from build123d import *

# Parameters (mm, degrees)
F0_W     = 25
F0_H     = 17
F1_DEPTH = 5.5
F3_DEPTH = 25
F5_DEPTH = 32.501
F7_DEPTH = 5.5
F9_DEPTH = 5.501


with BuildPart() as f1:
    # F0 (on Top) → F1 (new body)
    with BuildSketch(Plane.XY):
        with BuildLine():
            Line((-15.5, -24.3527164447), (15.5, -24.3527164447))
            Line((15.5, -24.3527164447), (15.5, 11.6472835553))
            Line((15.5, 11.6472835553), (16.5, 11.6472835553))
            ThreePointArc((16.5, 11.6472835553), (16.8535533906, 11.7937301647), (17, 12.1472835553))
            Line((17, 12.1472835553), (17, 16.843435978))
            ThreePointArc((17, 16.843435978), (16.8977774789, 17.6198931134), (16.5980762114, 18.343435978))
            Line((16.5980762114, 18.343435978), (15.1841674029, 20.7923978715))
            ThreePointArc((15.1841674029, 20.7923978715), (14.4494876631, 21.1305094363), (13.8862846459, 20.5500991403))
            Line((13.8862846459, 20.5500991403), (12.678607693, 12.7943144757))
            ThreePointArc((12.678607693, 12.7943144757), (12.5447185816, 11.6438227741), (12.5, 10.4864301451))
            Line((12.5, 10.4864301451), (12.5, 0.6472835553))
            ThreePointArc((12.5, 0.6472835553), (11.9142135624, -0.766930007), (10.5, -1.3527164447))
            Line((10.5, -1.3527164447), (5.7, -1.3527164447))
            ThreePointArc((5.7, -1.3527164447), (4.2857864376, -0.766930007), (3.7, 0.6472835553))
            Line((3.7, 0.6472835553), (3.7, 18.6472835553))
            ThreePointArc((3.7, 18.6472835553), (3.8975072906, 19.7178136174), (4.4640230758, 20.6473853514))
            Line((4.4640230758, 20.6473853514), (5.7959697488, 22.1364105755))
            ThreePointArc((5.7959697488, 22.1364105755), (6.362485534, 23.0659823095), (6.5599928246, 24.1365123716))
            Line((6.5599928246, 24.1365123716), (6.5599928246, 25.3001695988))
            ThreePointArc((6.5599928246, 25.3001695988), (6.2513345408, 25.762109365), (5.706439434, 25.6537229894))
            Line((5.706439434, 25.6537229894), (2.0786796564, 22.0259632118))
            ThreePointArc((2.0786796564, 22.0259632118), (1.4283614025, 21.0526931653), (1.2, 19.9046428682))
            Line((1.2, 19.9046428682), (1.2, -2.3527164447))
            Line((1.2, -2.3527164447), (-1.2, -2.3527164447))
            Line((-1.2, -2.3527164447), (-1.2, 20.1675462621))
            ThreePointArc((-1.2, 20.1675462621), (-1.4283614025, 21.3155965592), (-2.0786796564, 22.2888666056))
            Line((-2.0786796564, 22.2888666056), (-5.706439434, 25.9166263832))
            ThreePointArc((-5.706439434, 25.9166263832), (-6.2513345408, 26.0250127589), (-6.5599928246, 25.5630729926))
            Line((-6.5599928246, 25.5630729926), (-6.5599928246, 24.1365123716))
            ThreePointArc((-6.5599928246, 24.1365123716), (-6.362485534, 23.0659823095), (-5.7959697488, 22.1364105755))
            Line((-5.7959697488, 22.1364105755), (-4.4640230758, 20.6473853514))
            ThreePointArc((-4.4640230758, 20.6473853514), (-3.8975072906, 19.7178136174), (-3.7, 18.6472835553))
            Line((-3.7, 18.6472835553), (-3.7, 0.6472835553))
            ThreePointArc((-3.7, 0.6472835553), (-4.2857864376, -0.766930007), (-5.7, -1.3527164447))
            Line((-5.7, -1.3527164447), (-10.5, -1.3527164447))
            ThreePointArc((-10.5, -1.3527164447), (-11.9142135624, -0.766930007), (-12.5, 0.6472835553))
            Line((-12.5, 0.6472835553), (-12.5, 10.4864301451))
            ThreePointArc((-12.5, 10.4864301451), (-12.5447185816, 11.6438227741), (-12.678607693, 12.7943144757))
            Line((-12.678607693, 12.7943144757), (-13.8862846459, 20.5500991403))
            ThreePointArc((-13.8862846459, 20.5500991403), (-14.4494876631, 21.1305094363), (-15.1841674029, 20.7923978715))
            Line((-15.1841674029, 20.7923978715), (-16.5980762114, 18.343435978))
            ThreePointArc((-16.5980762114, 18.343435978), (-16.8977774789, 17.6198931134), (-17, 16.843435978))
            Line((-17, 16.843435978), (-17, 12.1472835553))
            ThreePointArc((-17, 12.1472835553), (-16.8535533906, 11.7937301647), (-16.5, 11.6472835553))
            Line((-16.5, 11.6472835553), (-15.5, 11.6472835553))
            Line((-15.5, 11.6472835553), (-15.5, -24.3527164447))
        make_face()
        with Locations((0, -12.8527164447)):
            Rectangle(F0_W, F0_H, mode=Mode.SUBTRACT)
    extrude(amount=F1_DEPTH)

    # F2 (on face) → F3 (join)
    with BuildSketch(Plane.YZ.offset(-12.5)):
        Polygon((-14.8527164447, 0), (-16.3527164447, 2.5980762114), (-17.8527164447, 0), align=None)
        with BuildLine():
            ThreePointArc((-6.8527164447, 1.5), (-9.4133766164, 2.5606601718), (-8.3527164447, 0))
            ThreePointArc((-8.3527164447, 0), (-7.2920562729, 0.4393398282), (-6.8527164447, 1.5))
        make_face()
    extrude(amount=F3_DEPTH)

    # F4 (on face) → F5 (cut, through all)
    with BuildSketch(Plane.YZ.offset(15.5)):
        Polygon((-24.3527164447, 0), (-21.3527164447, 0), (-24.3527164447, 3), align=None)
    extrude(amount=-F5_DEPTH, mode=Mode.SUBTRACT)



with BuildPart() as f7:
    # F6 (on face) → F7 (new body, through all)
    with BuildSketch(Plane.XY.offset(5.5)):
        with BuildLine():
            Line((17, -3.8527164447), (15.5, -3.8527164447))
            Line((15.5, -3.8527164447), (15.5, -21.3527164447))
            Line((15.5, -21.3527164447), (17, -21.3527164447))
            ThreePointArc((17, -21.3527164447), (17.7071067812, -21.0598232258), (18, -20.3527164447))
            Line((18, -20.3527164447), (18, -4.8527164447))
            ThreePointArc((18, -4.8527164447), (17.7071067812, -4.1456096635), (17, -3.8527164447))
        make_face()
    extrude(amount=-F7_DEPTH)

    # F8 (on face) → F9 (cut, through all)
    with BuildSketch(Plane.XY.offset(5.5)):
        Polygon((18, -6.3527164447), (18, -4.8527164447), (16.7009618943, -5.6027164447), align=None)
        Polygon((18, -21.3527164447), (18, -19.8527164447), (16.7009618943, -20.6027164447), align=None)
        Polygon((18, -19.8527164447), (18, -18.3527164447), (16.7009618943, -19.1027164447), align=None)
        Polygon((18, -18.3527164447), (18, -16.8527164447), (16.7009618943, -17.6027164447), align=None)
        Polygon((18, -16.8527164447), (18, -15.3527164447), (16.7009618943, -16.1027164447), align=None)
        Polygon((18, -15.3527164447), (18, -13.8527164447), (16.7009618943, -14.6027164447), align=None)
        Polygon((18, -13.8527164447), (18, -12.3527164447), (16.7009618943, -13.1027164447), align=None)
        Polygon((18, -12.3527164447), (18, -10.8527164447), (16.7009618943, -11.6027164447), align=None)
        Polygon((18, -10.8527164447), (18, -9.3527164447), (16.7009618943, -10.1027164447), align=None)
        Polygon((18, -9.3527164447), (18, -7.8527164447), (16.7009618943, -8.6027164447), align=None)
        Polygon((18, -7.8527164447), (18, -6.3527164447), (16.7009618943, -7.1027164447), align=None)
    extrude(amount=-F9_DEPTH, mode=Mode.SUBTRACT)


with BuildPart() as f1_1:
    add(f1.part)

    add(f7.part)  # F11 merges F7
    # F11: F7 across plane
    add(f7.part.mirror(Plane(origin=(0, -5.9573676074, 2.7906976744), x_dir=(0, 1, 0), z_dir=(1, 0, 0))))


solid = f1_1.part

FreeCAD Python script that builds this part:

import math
import FreeCAD as App
import Part
import Sketcher
Q = App.Units.Quantity


def add_polygon(sketch, points):
    """Adds a closed chain of lines whose ends are joined by coincident constraints."""
    first, n = sketch.GeometryCount, len(points)
    for a, b in zip(points, points[1:] + points[:1]):
        sketch.addGeometry(Part.LineSegment(App.Vector(*a, 0), App.Vector(*b, 0)), False)
    for i in range(n):
        sketch.addConstraint(Sketcher.Constraint("Coincident", first + i, 2, first + (i + 1) % n, 1))

doc = App.newDocument("Part")
params = doc.addObject("Spreadsheet::Sheet", "Params")
for row, (alias, value) in enumerate([
    ("sketch1_radius", "3 mm"),
    ("sketch1_radius2", "15 mm"),
    ("sketch1_radius3", "2 mm"),
    ("sketch1_radius4", "0.5 mm"),
    ("sketch1_radius5", "0.7 mm"),
    ("pad1_length", "5.5 mm"),
    ("sketch2_radius", "1.5 mm"),
    ("sketch2_width", "3 mm"),
    ("pad2_length", "25 mm"),
    ("sketch3_width", "3 mm"),
    ("sketch4_radius", "1 mm"),
    ("sketch4_width", "1.5 mm"),
    ("sketch4_height", "17.5 mm"),
    ("pad3_length", "5.5 mm"),
    ("sketch5_height", "1.5 mm"),
], start=1):
    params.set(f"A{row}", alias)
    params.set(f"B{row}", "=" + value)
    params.setAlias(f"B{row}", alias)

body = doc.addObject("PartDesign::Body", "Body")

# Sketch on XY plane
sketch1 = body.newObject("Sketcher::SketchObject", "Sketch")
sketch1.AttachmentSupport = (doc.getObject("XY_Plane"), [""])
sketch1.MapMode = "FlatFace"
sketch1.addGeometry(Part.LineSegment(App.Vector(-15.5, -24.352716, 0), App.Vector(15.5, -24.352716, 0)), False)  # 0
sketch1.addGeometry(Part.LineSegment(App.Vector(15.5, -24.352716, 0), App.Vector(15.5, 11.647284, 0)), False)  # 1
sketch1.addGeometry(Part.LineSegment(App.Vector(15.5, 11.647284, 0), App.Vector(16.5, 11.647284, 0)), False)  # 2
sketch1.addGeometry(Part.ArcOfCircle(Part.Circle(App.Vector(16.5, 12.147284, 0), App.Vector(0, 0, 1), 0.5), math.radians(-90), math.radians(0)), False)  # 3
sketch1.addGeometry(Part.LineSegment(App.Vector(17, 12.147284, 0), App.Vector(17, 16.843436, 0)), False)  # 4
sketch1.addGeometry(Part.ArcOfCircle(Part.Circle(App.Vector(14, 16.843436, 0), App.Vector(0, 0, 1), 3), math.radians(0), math.radians(30)), False)  # 5
sketch1.addGeometry(Part.LineSegment(App.Vector(16.598076, 18.343436, 0), App.Vector(15.184167, 20.792398, 0)), False)  # 6
sketch1.addGeometry(Part.ArcOfCircle(Part.Circle(App.Vector(14.57795, 20.442398, 0), App.Vector(0, 0, 1), 0.7), math.radians(30), math.radians(171.149375)), False)  # 7
sketch1.addGeometry(Part.LineSegment(App.Vector(13.886285, 20.550099, 0), App.Vector(12.678608, 12.794314, 0)), False)  # 8
sketch1.addGeometry(Part.ArcOfCircle(Part.Circle(App.Vector(27.5, 10.48643, 0), App.Vector(0, 0, 1), 15), math.radians(171.149375), math.radians(180)), False)  # 9
sketch1.addGeometry(Part.LineSegment(App.Vector(12.5, 10.48643, 0), App.Vector(12.5, 0.647284, 0)), False)  # 10
sketch1.addGeometry(Part.ArcOfCircle(Part.Circle(App.Vector(10.5, 0.647284, 0), App.Vector(0, 0, 1), 2), math.radians(-90), math.radians(0)), False)  # 11
sketch1.addGeometry(Part.LineSegment(App.Vector(10.5, -1.352716, 0), App.Vector(5.7, -1.352716, 0)), False)  # 12
sketch1.addGeometry(Part.ArcOfCircle(Part.Circle(App.Vector(5.7, 0.647284, 0), App.Vector(0, 0, 1), 2), math.radians(180), math.radians(270)), False)  # 13
sketch1.addGeometry(Part.LineSegment(App.Vector(3.7, 0.647284, 0), App.Vector(3.7, 18.647284, 0)), False)  # 14
sketch1.addGeometry(Part.ArcOfCircle(Part.Circle(App.Vector(6.7, 18.647284, 0), App.Vector(0, 0, 1), 3), math.radians(138.187077), math.radians(180)), False)  # 15
sketch1.addGeometry(Part.LineSegment(App.Vector(4.464023, 20.647385, 0), App.Vector(5.79597, 22.136411, 0)), False)  # 16
sketch1.addGeometry(Part.ArcOfCircle(Part.Circle(App.Vector(3.559993, 24.136512, 0), App.Vector(0, 0, 1), 3), math.radians(-41.812923), math.radians(0)), False)  # 17
sketch1.addGeometry(Part.LineSegment(App.Vector(6.559993, 24.136512, 0), App.Vector(6.559993, 25.30017, 0)), False)  # 18
sketch1.addGeometry(Part.ArcOfCircle(Part.Circle(App.Vector(6.059993, 25.30017, 0), App.Vector(0, 0, 1), 0.5), math.radians(0), math.radians(135)), False)  # 19
sketch1.addGeometry(Part.LineSegment(App.Vector(5.706439, 25.653723, 0), App.Vector(2.07868, 22.025963, 0)), False)  # 20
sketch1.addGeometry(Part.ArcOfCircle(Part.Circle(App.Vector(4.2, 19.904643, 0), App.Vector(0, 0, 1), 3), math.radians(135), math.radians(180)), False)  # 21
sketch1.addGeometry(Part.LineSegment(App.Vector(1.2, 19.904643, 0), App.Vector(1.2, -2.352716, 0)), False)  # 22
sketch1.addGeometry(Part.LineSegment(App.Vector(1.2, -2.352716, 0), App.Vector(-1.2, -2.352716, 0)), False)  # 23
sketch1.addGeometry(Part.LineSegment(App.Vector(-1.2, -2.352716, 0), App.Vector(-1.2, 20.167546, 0)), False)  # 24
sketch1.addGeometry(Part.ArcOfCircle(Part.Circle(App.Vector(-4.2, 20.167546, 0), App.Vector(0, 0, 1), 3), math.radians(0), math.radians(45)), False)  # 25
sketch1.addGeometry(Part.LineSegment(App.Vector(-2.07868, 22.288867, 0), App.Vector(-5.706439, 25.916626, 0)), False)  # 26
sketch1.addGeometry(Part.ArcOfCircle(Part.Circle(App.Vector(-6.059993, 25.563073, 0), App.Vector(0, 0, 1), 0.5), math.radians(45), math.radians(180)), False)  # 27
sketch1.addGeometry(Part.LineSegment(App.Vector(-6.559993, 25.563073, 0), App.Vector(-6.559993, 24.136512, 0)), False)  # 28
sketch1.addGeometry(Part.ArcOfCircle(Part.Circle(App.Vector(-3.559993, 24.136512, 0), App.Vector(0, 0, 1), 3), math.radians(180), math.radians(221.812923)), False)  # 29
sketch1.addGeometry(Part.LineSegment(App.Vector(-5.79597, 22.136411, 0), App.Vector(-4.464023, 20.647385, 0)), False)  # 30
sketch1.addGeometry(Part.ArcOfCircle(Part.Circle(App.Vector(-6.7, 18.647284, 0), App.Vector(0, 0, 1), 3), math.radians(0), math.radians(41.812923)), False)  # 31
sketch1.addGeometry(Part.LineSegment(App.Vector(-3.7, 18.647284, 0), App.Vector(-3.7, 0.647284, 0)), False)  # 32
sketch1.addGeometry(Part.ArcOfCircle(Part.Circle(App.Vector(-5.7, 0.647284, 0), App.Vector(0, 0, 1), 2), math.radians(-90), math.radians(0)), False)  # 33
sketch1.addGeometry(Part.LineSegment(App.Vector(-5.7, -1.352716, 0), App.Vector(-10.5, -1.352716, 0)), False)  # 34
sketch1.addGeometry(Part.ArcOfCircle(Part.Circle(App.Vector(-10.5, 0.647284, 0), App.Vector(0, 0, 1), 2), math.radians(180), math.radians(270)), False)  # 35
sketch1.addGeometry(Part.LineSegment(App.Vector(-12.5, 0.647284, 0), App.Vector(-12.5, 10.48643, 0)), False)  # 36
sketch1.addGeometry(Part.ArcOfCircle(Part.Circle(App.Vector(-27.5, 10.48643, 0), App.Vector(0, 0, 1), 15), math.radians(0), math.radians(8.850625)), False)  # 37
sketch1.addGeometry(Part.LineSegment(App.Vector(-12.678608, 12.794314, 0), App.Vector(-13.886285, 20.550099, 0)), False)  # 38
sketch1.addGeometry(Part.ArcOfCircle(Part.Circle(App.Vector(-14.57795, 20.442398, 0), App.Vector(0, 0, 1), 0.7), math.radians(8.850625), math.radians(150)), False)  # 39
sketch1.addGeometry(Part.LineSegment(App.Vector(-15.184167, 20.792398, 0), App.Vector(-16.598076, 18.343436, 0)), False)  # 40
sketch1.addGeometry(Part.ArcOfCircle(Part.Circle(App.Vector(-14, 16.843436, 0), App.Vector(0, 0, 1), 3), math.radians(150), math.radians(180)), False)  # 41
sketch1.addGeometry(Part.LineSegment(App.Vector(-17, 16.843436, 0), App.Vector(-17, 12.147284, 0)), False)  # 42
sketch1.addGeometry(Part.ArcOfCircle(Part.Circle(App.Vector(-16.5, 12.147284, 0), App.Vector(0, 0, 1), 0.5), math.radians(180), math.radians(270)), False)  # 43
sketch1.addGeometry(Part.LineSegment(App.Vector(-16.5, 11.647284, 0), App.Vector(-15.5, 11.647284, 0)), False)  # 44
sketch1.addGeometry(Part.LineSegment(App.Vector(-15.5, 11.647284, 0), App.Vector(-15.5, -24.352716, 0)), False)  # 45
add_polygon(sketch1, [(12.5, -21.352716), (-12.5, -21.352716), (-12.5, -4.352716), (12.5, -4.352716)])  # lines 46-49
sketch1.addConstraint(Sketcher.Constraint("Coincident", 0, 2, 1, 1))
sketch1.addConstraint(Sketcher.Constraint("Coincident", 1, 2, 2, 1))
sketch1.addConstraint(Sketcher.Constraint("Tangent", 2, 2, 3, 1))
sketch1.addConstraint(Sketcher.Constraint("Tangent", 3, 2, 4, 1))
sketch1.addConstraint(Sketcher.Constraint("Tangent", 4, 2, 5, 1))
sketch1.addConstraint(Sketcher.Constraint("Tangent", 5, 2, 6, 1))
sketch1.addConstraint(Sketcher.Constraint("Tangent", 6, 2, 7, 1))
sketch1.addConstraint(Sketcher.Constraint("Tangent", 7, 2, 8, 1))
sketch1.addConstraint(Sketcher.Constraint("Tangent", 8, 2, 9, 1))
sketch1.addConstraint(Sketcher.Constraint("Tangent", 9, 2, 10, 1))
sketch1.addConstraint(Sketcher.Constraint("Tangent", 10, 2, 11, 2))
sketch1.addConstraint(Sketcher.Constraint("Tangent", 11, 1, 12, 1))
sketch1.addConstraint(Sketcher.Constraint("Tangent", 12, 2, 13, 2))
sketch1.addConstraint(Sketcher.Constraint("Tangent", 13, 1, 14, 1))
sketch1.addConstraint(Sketcher.Constraint("Tangent", 14, 2, 15, 2))
sketch1.addConstraint(Sketcher.Constraint("Tangent", 15, 1, 16, 1))
sketch1.addConstraint(Sketcher.Constraint("Tangent", 16, 2, 17, 1))
sketch1.addConstraint(Sketcher.Constraint("Tangent", 17, 2, 18, 1))
sketch1.addConstraint(Sketcher.Constraint("Tangent", 18, 2, 19, 1))
sketch1.addConstraint(Sketcher.Constraint("Tangent", 19, 2, 20, 1))
sketch1.addConstraint(Sketcher.Constraint("Tangent", 20, 2, 21, 1))
sketch1.addConstraint(Sketcher.Constraint("Tangent", 21, 2, 22, 1))
sketch1.addConstraint(Sketcher.Constraint("Coincident", 22, 2, 23, 1))
sketch1.addConstraint(Sketcher.Constraint("Coincident", 23, 2, 24, 1))
sketch1.addConstraint(Sketcher.Constraint("Tangent", 24, 2, 25, 1))
sketch1.addConstraint(Sketcher.Constraint("Tangent", 25, 2, 26, 1))
sketch1.addConstraint(Sketcher.Constraint("Tangent", 26, 2, 27, 1))
sketch1.addConstraint(Sketcher.Constraint("Tangent", 27, 2, 28, 1))
sketch1.addConstraint(Sketcher.Constraint("Tangent", 28, 2, 29, 1))
sketch1.addConstraint(Sketcher.Constraint("Tangent", 29, 2, 30, 1))
sketch1.addConstraint(Sketcher.Constraint("Tangent", 30, 2, 31, 2))
sketch1.addConstraint(Sketcher.Constraint("Tangent", 31, 1, 32, 1))
sketch1.addConstraint(Sketcher.Constraint("Tangent", 32, 2, 33, 2))
sketch1.addConstraint(Sketcher.Constraint("Tangent", 33, 1, 34, 1))
sketch1.addConstraint(Sketcher.Constraint("Tangent", 34, 2, 35, 2))
sketch1.addConstraint(Sketcher.Constraint("Tangent", 35, 1, 36, 1))
sketch1.addConstraint(Sketcher.Constraint("Tangent", 36, 2, 37, 1))
sketch1.addConstraint(Sketcher.Constraint("Tangent", 37, 2, 38, 1))
sketch1.addConstraint(Sketcher.Constraint("Tangent", 38, 2, 39, 1))
sketch1.addConstraint(Sketcher.Constraint("Tangent", 39, 2, 40, 1))
sketch1.addConstraint(Sketcher.Constraint("Tangent", 40, 2, 41, 1))
sketch1.addConstraint(Sketcher.Constraint("Tangent", 41, 2, 42, 1))
sketch1.addConstraint(Sketcher.Constraint("Tangent", 42, 2, 43, 1))
sketch1.addConstraint(Sketcher.Constraint("Tangent", 43, 2, 44, 1))
sketch1.addConstraint(Sketcher.Constraint("Coincident", 44, 2, 45, 1))
sketch1.addConstraint(Sketcher.Constraint("Coincident", 45, 2, 0, 1))
sketch1.addConstraint(Sketcher.Constraint("Horizontal", 0))
sketch1.addConstraint(Sketcher.Constraint("Vertical", 1))
sketch1.addConstraint(Sketcher.Constraint("Horizontal", 2))
sketch1.addConstraint(Sketcher.Constraint("Vertical", 4))
sketch1.addConstraint(Sketcher.Constraint("Vertical", 10))
sketch1.addConstraint(Sketcher.Constraint("Horizontal", 12))
sketch1.addConstraint(Sketcher.Constraint("Vertical", 14))
sketch1.addConstraint(Sketcher.Constraint("Vertical", 18))
sketch1.addConstraint(Sketcher.Constraint("Vertical", 22))
sketch1.addConstraint(Sketcher.Constraint("Horizontal", 23))
sketch1.addConstraint(Sketcher.Constraint("Vertical", 24))
sketch1.addConstraint(Sketcher.Constraint("Vertical", 28))
sketch1.addConstraint(Sketcher.Constraint("Vertical", 32))
sketch1.addConstraint(Sketcher.Constraint("Horizontal", 34))
sketch1.addConstraint(Sketcher.Constraint("Vertical", 36))
sketch1.addConstraint(Sketcher.Constraint("Vertical", 42))
sketch1.addConstraint(Sketcher.Constraint("Horizontal", 44))
sketch1.addConstraint(Sketcher.Constraint("Vertical", 45))
sketch1.addConstraint(Sketcher.Constraint("Horizontal", 46))
sketch1.addConstraint(Sketcher.Constraint("Vertical", 47))
sketch1.addConstraint(Sketcher.Constraint("Horizontal", 48))
sketch1.addConstraint(Sketcher.Constraint("Vertical", 49))
sketch1.addConstraint(Sketcher.Constraint("Equal", 11, 13))
sketch1.addConstraint(Sketcher.Constraint("Equal", 5, 15))
sketch1.addConstraint(Sketcher.Constraint("Equal", 15, 17))
sketch1.addConstraint(Sketcher.Constraint("Equal", 3, 19))
sketch1.addConstraint(Sketcher.Constraint("Equal", 17, 21))
sketch1.addConstraint(Sketcher.Constraint("Equal", 21, 25))
sketch1.addConstraint(Sketcher.Constraint("Equal", 19, 27))
sketch1.addConstraint(Sketcher.Constraint("Equal", 25, 29))
sketch1.addConstraint(Sketcher.Constraint("Equal", 29, 31))
sketch1.addConstraint(Sketcher.Constraint("Equal", 13, 33))
sketch1.addConstraint(Sketcher.Constraint("Equal", 33, 35))
sketch1.addConstraint(Sketcher.Constraint("Equal", 9, 37))
sketch1.addConstraint(Sketcher.Constraint("Equal", 7, 39))
sketch1.addConstraint(Sketcher.Constraint("Equal", 31, 41))
sketch1.addConstraint(Sketcher.Constraint("Equal", 27, 43))
sketch1.addConstraint(Sketcher.Constraint("Symmetric", 17, 3, 29, 3, -2))
sketch1.addConstraint(Sketcher.Constraint("Symmetric", 15, 3, 31, 3, -2))
sketch1.addConstraint(Sketcher.Constraint("Symmetric", 11, 3, 35, 3, -2))
sketch1.addConstraint(Sketcher.Constraint("Symmetric", 7, 3, 39, 3, -2))
sketch1.addConstraint(Sketcher.Constraint("Symmetric", 5, 3, 41, 3, -2))
sketch1.addConstraint(Sketcher.Constraint("Symmetric", 1, 2, 44, 2, -2))
sketch1.addConstraint(Sketcher.Constraint("Perpendicular", 20, 26))
sketch1.addConstraint(Sketcher.Constraint("Horizontal", 9, 3, 37, 3))
sketch1.addConstraint(Sketcher.Constraint("Vertical", 36, 2, 46, 2))
sketch1.addConstraint(Sketcher.Constraint("Vertical", 10, 2, 48, 2))
sketch1.addConstraint(Sketcher.Constraint("Equal", 20, 26))
sketch1.addConstraint(Sketcher.Constraint("Radius", 5, 3.0))
sketch1.addConstraint(Sketcher.Constraint("Radius", 9, 15.0))
sketch1.addConstraint(Sketcher.Constraint("Radius", 11, 2.0))
sketch1.addConstraint(Sketcher.Constraint("Radius", 3, 0.5))
sketch1.addConstraint(Sketcher.Constraint("Radius", 7, 0.7))
sketch1.addConstraint(Sketcher.Constraint("DistanceX", 0, 1, 0, 2, 31.0))
sketch1.addConstraint(Sketcher.Constraint("DistanceX", 2, 1, 2, 2, 1.0))
sketch1.addConstraint(Sketcher.Constraint("DistanceX", 46, 2, 46, 1, 25.0))
sketch1.addConstraint(Sketcher.Constraint("DistanceY", 1, 1, 1, 2, 36.0))
sketch1.addConstraint(Sketcher.Constraint("DistanceY", 14, 1, 14, 2, 18.0))
sketch1.addConstraint(Sketcher.Constraint("DistanceY", 47, 1, 47, 2, 17.0))
sketch1.addConstraint(Sketcher.Constraint("Angle", 6, Q("120 deg")))
sketch1.addConstraint(Sketcher.Constraint("Angle", 20, Q("-135 deg")))
sketch1.addConstraint(Sketcher.Constraint("DistanceX", 12, 2, 12, 1, 4.8))
sketch1.addConstraint(Sketcher.Constraint("DistanceX", 23, 2, 23, 1, 2.4))
sketch1.addConstraint(Sketcher.Constraint("DistanceY", 22, 2, 22, 1, 22.257359))
sketch1.addConstraint(Sketcher.Constraint("DistanceY", 28, 2, 28, 1, 1.426561))
sketch1.addConstraint(Sketcher.Constraint("DistanceY", -1, 1, 7, 2, 20.550099))
sketch1.addConstraint(Sketcher.Constraint("Distance", 16, 1.997818))
sketch1.addConstraint(Sketcher.Constraint("DistanceY", 4, 1, 4, 2, 4.696152))
sketch1.addConstraint(Sketcher.Constraint("DistanceY", 10, 2, 10, 1, 9.839147))
sketch1.addConstraint(Sketcher.Constraint("DistanceY", 18, 1, 18, 2, 1.163657))
sketch1.addConstraint(Sketcher.Constraint("DistanceX", -1, 1, 7, 3, 14.57795))
sketch1.addConstraint(Sketcher.Constraint("DistanceY", -1, 1, 9, 3, 10.48643))
sketch1.addConstraint(Sketcher.Constraint("DistanceY", -1, 1, 19, 3, 25.30017))
sketch1.addConstraint(Sketcher.Constraint("DistanceY", 46, 2, -1, 1, 21.352716))
sketch1.setExpression("Constraints[98]", "Params.sketch1_radius")
sketch1.setExpression("Constraints[99]", "Params.sketch1_radius2")
sketch1.setExpression("Constraints[100]", "Params.sketch1_radius3")
sketch1.setExpression("Constraints[101]", "Params.sketch1_radius4")
sketch1.setExpression("Constraints[102]", "Params.sketch1_radius5")
pad1 = body.newObject("PartDesign::Pad", "Pad")
pad1.Profile = sketch1
pad1.setExpression("Length", "Params.pad1_length")

# Sketch on YZ plane
sketch2 = body.newObject("Sketcher::SketchObject", "Sketch001")
sketch2.AttachmentSupport = (doc.getObject("YZ_Plane"), [""])
sketch2.MapMode = "FlatFace"
sketch2.AttachmentOffset = App.Placement(App.Vector(0, 0, -12.5), App.Rotation())
add_polygon(sketch2, [(-14.852716, 0), (-16.352716, 2.598076), (-17.852716, 0)])  # lines 0-2
sketch2.addGeometry(Part.ArcOfCircle(Part.Circle(App.Vector(-8.352716, 1.5, 0), App.Vector(0, 0, 1), 1.5), math.radians(0), math.radians(270)), False)  # 3
sketch2.addGeometry(Part.ArcOfCircle(Part.Circle(App.Vector(-8.352716, 1.5, 0), App.Vector(0, 0, 1), 1.5), math.radians(-90), math.radians(0)), False)  # 4
sketch2.addConstraint(Sketcher.Constraint("Tangent", 3, 1, 4, 2))
sketch2.addConstraint(Sketcher.Constraint("Coincident", 4, 1, 3, 2))
sketch2.addConstraint(Sketcher.Constraint("Horizontal", 2))
sketch2.addConstraint(Sketcher.Constraint("PointOnObject", 1, 2, -1))
sketch2.addConstraint(Sketcher.Constraint("PointOnObject", 4, 1, -1))
sketch2.addConstraint(Sketcher.Constraint("Horizontal", 4, 3, 3, 1))
sketch2.addConstraint(Sketcher.Constraint("Vertical", 3, 3, 4, 1))
sketch2.addConstraint(Sketcher.Constraint("Equal", 0, 1))
sketch2.addConstraint(Sketcher.Constraint("Radius", 3, 1.5))
sketch2.addConstraint(Sketcher.Constraint("DistanceX", 2, 1, 2, 2, 3.0))
sketch2.addConstraint(Sketcher.Constraint("Angle", 0, Q("120 deg")))
sketch2.addConstraint(Sketcher.Constraint("DistanceX", 0, 2, 3, 3, 8.0))
sketch2.addConstraint(Sketcher.Constraint("DistanceX", 3, 3, -1, 1, 8.352716))
sketch2.setExpression("Constraints[11]", "Params.sketch2_radius")
sketch2.setExpression("Constraints[12]", "Params.sketch2_width")
pad2 = body.newObject("PartDesign::Pad", "Pad001")
pad2.Profile = sketch2
pad2.setExpression("Length", "Params.pad2_length")

# Sketch on YZ plane
sketch3 = body.newObject("Sketcher::SketchObject", "Sketch002")
sketch3.AttachmentSupport = (doc.getObject("YZ_Plane"), [""])
sketch3.MapMode = "FlatFace"
sketch3.AttachmentOffset = App.Placement(App.Vector(0, 0, 15.5), App.Rotation())
add_polygon(sketch3, [(-24.352716, 0), (-21.352716, 0), (-24.352716, 3)])  # lines 0-2
sketch3.addConstraint(Sketcher.Constraint("Horizontal", 0))
sketch3.addConstraint(Sketcher.Constraint("Vertical", 2))
sketch3.addConstraint(Sketcher.Constraint("PointOnObject", 0, 2, -1))
sketch3.addConstraint(Sketcher.Constraint("Equal", 0, 2))
sketch3.addConstraint(Sketcher.Constraint("DistanceX", 0, 1, 0, 2, 3.0))
sketch3.addConstraint(Sketcher.Constraint("DistanceX", 0, 2, -1, 1, 21.352716))
sketch3.setExpression("Constraints[7]", "Params.sketch3_width")
pocket1 = body.newObject("PartDesign::Pocket", "Pocket")
pocket1.Profile = sketch3
pocket1.Type = "ThroughAll"
body2 = doc.addObject("PartDesign::Body", "Body001")

# Sketch on XY plane
sketch4 = body2.newObject("Sketcher::SketchObject", "Sketch003")
sketch4.AttachmentSupport = (doc.getObject("XY_Plane001"), [""])
sketch4.MapMode = "FlatFace"
sketch4.AttachmentOffset = App.Placement(App.Vector(0, 0, 5.5), App.Rotation())
sketch4.addGeometry(Part.LineSegment(App.Vector(17, -3.852716, 0), App.Vector(15.5, -3.852716, 0)), False)
sketch4.addGeometry(Part.LineSegment(App.Vector(15.5, -3.852716, 0), App.Vector(15.5, -21.352716, 0)), False)
sketch4.addGeometry(Part.LineSegment(App.Vector(15.5, -21.352716, 0), App.Vector(17, -21.352716, 0)), False)
sketch4.addGeometry(Part.ArcOfCircle(Part.Circle(App.Vector(17, -20.352716, 0), App.Vector(0, 0, 1), 1), math.radians(-90), math.radians(0)), False)
sketch4.addGeometry(Part.LineSegment(App.Vector(18, -20.352716, 0), App.Vector(18, -4.852716, 0)), False)
sketch4.addGeometry(Part.ArcOfCircle(Part.Circle(App.Vector(17, -4.852716, 0), App.Vector(0, 0, 1), 1), math.radians(0), math.radians(90)), False)
sketch4.addConstraint(Sketcher.Constraint("Coincident", 0, 2, 1, 1))
sketch4.addConstraint(Sketcher.Constraint("Coincident", 1, 2, 2, 1))
sketch4.addConstraint(Sketcher.Constraint("Tangent", 2, 2, 3, 1))
sketch4.addConstraint(Sketcher.Constraint("Tangent", 3, 2, 4, 1))
sketch4.addConstraint(Sketcher.Constraint("Tangent", 4, 2, 5, 1))
sketch4.addConstraint(Sketcher.Constraint("Tangent", 5, 2, 0, 1))
sketch4.addConstraint(Sketcher.Constraint("Horizontal", 0))
sketch4.addConstraint(Sketcher.Constraint("Vertical", 1))
sketch4.addConstraint(Sketcher.Constraint("Horizontal", 2))
sketch4.addConstraint(Sketcher.Constraint("Vertical", 4))
sketch4.addConstraint(Sketcher.Constraint("Equal", 3, 5))
sketch4.addConstraint(Sketcher.Constraint("Radius", 3, 1.0))
sketch4.addConstraint(Sketcher.Constraint("DistanceX", 0, 2, 0, 1, 1.5))
sketch4.addConstraint(Sketcher.Constraint("DistanceY", 1, 2, 1, 1, 17.5))
sketch4.addConstraint(Sketcher.Constraint("DistanceX", -1, 1, 3, 3, 17.0))
sketch4.addConstraint(Sketcher.Constraint("DistanceY", 3, 3, -1, 1, 20.352716))
sketch4.setExpression("Constraints[11]", "Params.sketch4_radius")
sketch4.setExpression("Constraints[12]", "Params.sketch4_width")
sketch4.setExpression("Constraints[13]", "Params.sketch4_height")
pad3 = body2.newObject("PartDesign::Pad", "Pad002")
pad3.Profile = sketch4
pad3.setExpression("Length", "Params.pad3_length")
pad3.Reversed = True

# Sketch on XY plane
sketch5 = body2.newObject("Sketcher::SketchObject", "Sketch004")
sketch5.AttachmentSupport = (doc.getObject("XY_Plane001"), [""])
sketch5.MapMode = "FlatFace"
sketch5.AttachmentOffset = App.Placement(App.Vector(0, 0, 5.5), App.Rotation())
add_polygon(sketch5, [(18, -6.352716), (18, -4.852716), (16.700962, -5.602716)])  # lines 0-2
add_polygon(sketch5, [(18, -21.352716), (18, -19.852716), (16.700962, -20.602716)])  # lines 3-5
add_polygon(sketch5, [(18, -19.852716), (18, -18.352716), (16.700962, -19.102716)])  # lines 6-8
add_polygon(sketch5, [(18, -18.352716), (18, -16.852716), (16.700962, -17.602716)])  # lines 9-11
add_polygon(sketch5, [(18, -16.852716), (18, -15.352716), (16.700962, -16.102716)])  # lines 12-14
add_polygon(sketch5, [(18, -15.352716), (18, -13.852716), (16.700962, -14.602716)])  # lines 15-17
add_polygon(sketch5, [(18, -13.852716), (18, -12.352716), (16.700962, -13.102716)])  # lines 18-20
add_polygon(sketch5, [(18, -12.352716), (18, -10.852716), (16.700962, -11.602716)])  # lines 21-23
add_polygon(sketch5, [(18, -10.852716), (18, -9.352716), (16.700962, -10.102716)])  # lines 24-26
add_polygon(sketch5, [(18, -9.352716), (18, -7.852716), (16.700962, -8.602716)])  # lines 27-29
add_polygon(sketch5, [(18, -7.852716), (18, -6.352716), (16.700962, -7.102716)])  # lines 30-32
sketch5.addConstraint(Sketcher.Constraint("Vertical", 0))
sketch5.addConstraint(Sketcher.Constraint("Vertical", 3))
sketch5.addConstraint(Sketcher.Constraint("Vertical", 6))
sketch5.addConstraint(Sketcher.Constraint("Vertical", 9))
sketch5.addConstraint(Sketcher.Constraint("Vertical", 12))
sketch5.addConstraint(Sketcher.Constraint("Vertical", 15))
sketch5.addConstraint(Sketcher.Constraint("Vertical", 18))
sketch5.addConstraint(Sketcher.Constraint("Vertical", 21))
sketch5.addConstraint(Sketcher.Constraint("Vertical", 24))
sketch5.addConstraint(Sketcher.Constraint("Vertical", 27))
sketch5.addConstraint(Sketcher.Constraint("Vertical", 30))
sketch5.addConstraint(Sketcher.Constraint("Coincident", 8, 2, 3, 2))
sketch5.addConstraint(Sketcher.Constraint("Coincident", 11, 2, 6, 2))
sketch5.addConstraint(Sketcher.Constraint("Coincident", 14, 2, 9, 2))
sketch5.addConstraint(Sketcher.Constraint("Coincident", 17, 2, 12, 2))
sketch5.addConstraint(Sketcher.Constraint("Coincident", 20, 2, 15, 2))
sketch5.addConstraint(Sketcher.Constraint("Coincident", 23, 2, 18, 2))
sketch5.addConstraint(Sketcher.Constraint("Coincident", 26, 2, 21, 2))
sketch5.addConstraint(Sketcher.Constraint("Coincident", 29, 2, 24, 2))
sketch5.addConstraint(Sketcher.Constraint("Coincident", 30, 2, 2, 2))
sketch5.addConstraint(Sketcher.Constraint("Coincident", 32, 2, 27, 2))
sketch5.addConstraint(Sketcher.Constraint("Parallel", 1, 4))
sketch5.addConstraint(Sketcher.Constraint("Parallel", 2, 5))
sketch5.addConstraint(Sketcher.Constraint("Parallel", 4, 7))
sketch5.addConstraint(Sketcher.Constraint("Parallel", 5, 8))
sketch5.addConstraint(Sketcher.Constraint("Parallel", 7, 10))
sketch5.addConstraint(Sketcher.Constraint("Parallel", 8, 11))
sketch5.addConstraint(Sketcher.Constraint("Parallel", 10, 13))
sketch5.addConstraint(Sketcher.Constraint("Parallel", 11, 14))
sketch5.addConstraint(Sketcher.Constraint("Parallel", 13, 16))
sketch5.addConstraint(Sketcher.Constraint("Parallel", 14, 17))
sketch5.addConstraint(Sketcher.Constraint("Parallel", 16, 19))
sketch5.addConstraint(Sketcher.Constraint("Parallel", 17, 20))
sketch5.addConstraint(Sketcher.Constraint("Parallel", 19, 22))
sketch5.addConstraint(Sketcher.Constraint("Parallel", 20, 23))
sketch5.addConstraint(Sketcher.Constraint("Parallel", 22, 25))
sketch5.addConstraint(Sketcher.Constraint("Parallel", 23, 26))
sketch5.addConstraint(Sketcher.Constraint("Parallel", 25, 28))
sketch5.addConstraint(Sketcher.Constraint("Parallel", 26, 29))
sketch5.addConstraint(Sketcher.Constraint("Parallel", 28, 31))
sketch5.addConstraint(Sketcher.Constraint("Parallel", 29, 32))
sketch5.addConstraint(Sketcher.Constraint("Vertical", 1, 2, 4, 2))
sketch5.addConstraint(Sketcher.Constraint("Vertical", 4, 2, 7, 2))
sketch5.addConstraint(Sketcher.Constraint("Vertical", 7, 2, 10, 2))
sketch5.addConstraint(Sketcher.Constraint("Vertical", 10, 2, 13, 2))
sketch5.addConstraint(Sketcher.Constraint("Vertical", 13, 2, 16, 2))
sketch5.addConstraint(Sketcher.Constraint("Vertical", 16, 2, 19, 2))
sketch5.addConstraint(Sketcher.Constraint("Vertical", 19, 2, 22, 2))
sketch5.addConstraint(Sketcher.Constraint("Vertical", 22, 2, 25, 2))
sketch5.addConstraint(Sketcher.Constraint("Vertical", 25, 2, 28, 2))
sketch5.addConstraint(Sketcher.Constraint("Vertical", 28, 2, 31, 2))
sketch5.addConstraint(Sketcher.Constraint("Equal", 1, 2))
sketch5.addConstraint(Sketcher.Constraint("Angle", 1, Q("-150 deg")))
sketch5.addConstraint(Sketcher.Constraint("DistanceY", 0, 1, 0, 2, 1.5))
sketch5.addConstraint(Sketcher.Constraint("DistanceX", -1, 1, 0, 2, 18.0))
sketch5.addConstraint(Sketcher.Constraint("DistanceY", 0, 2, -1, 1, 4.852716))
sketch5.setExpression("Constraints[86]", "Params.sketch5_height")
pocket2 = body2.newObject("PartDesign::Pocket", "Pocket001")
pocket2.Profile = sketch5
pocket2.Type = "ThroughAll"
doc.recompute()

body3 = doc.addObject("PartDesign::Body", "Body002")
body3.BaseFeature = body2
boolean = body.newObject("PartDesign::Boolean", "Boolean")
boolean.Type = "Fuse"
boolean.addObjects([body3])
doc.recompute()

mirroring = doc.addObject("Part::Mirroring", "Mirroring")
mirroring.Source = body2
mirroring.Base = App.Vector(0, -5.957368, 2.790698)
mirroring.Normal = App.Vector(1, 0, 0)
body4 = doc.addObject("PartDesign::Body", "Body003")
body4.BaseFeature = mirroring
boolean2 = body.newObject("PartDesign::Boolean", "Boolean001")
boolean2.Type = "Fuse"
boolean2.addObjects([body4])
doc.recompute()
mirroring.Visibility = False

doc.recompute()
